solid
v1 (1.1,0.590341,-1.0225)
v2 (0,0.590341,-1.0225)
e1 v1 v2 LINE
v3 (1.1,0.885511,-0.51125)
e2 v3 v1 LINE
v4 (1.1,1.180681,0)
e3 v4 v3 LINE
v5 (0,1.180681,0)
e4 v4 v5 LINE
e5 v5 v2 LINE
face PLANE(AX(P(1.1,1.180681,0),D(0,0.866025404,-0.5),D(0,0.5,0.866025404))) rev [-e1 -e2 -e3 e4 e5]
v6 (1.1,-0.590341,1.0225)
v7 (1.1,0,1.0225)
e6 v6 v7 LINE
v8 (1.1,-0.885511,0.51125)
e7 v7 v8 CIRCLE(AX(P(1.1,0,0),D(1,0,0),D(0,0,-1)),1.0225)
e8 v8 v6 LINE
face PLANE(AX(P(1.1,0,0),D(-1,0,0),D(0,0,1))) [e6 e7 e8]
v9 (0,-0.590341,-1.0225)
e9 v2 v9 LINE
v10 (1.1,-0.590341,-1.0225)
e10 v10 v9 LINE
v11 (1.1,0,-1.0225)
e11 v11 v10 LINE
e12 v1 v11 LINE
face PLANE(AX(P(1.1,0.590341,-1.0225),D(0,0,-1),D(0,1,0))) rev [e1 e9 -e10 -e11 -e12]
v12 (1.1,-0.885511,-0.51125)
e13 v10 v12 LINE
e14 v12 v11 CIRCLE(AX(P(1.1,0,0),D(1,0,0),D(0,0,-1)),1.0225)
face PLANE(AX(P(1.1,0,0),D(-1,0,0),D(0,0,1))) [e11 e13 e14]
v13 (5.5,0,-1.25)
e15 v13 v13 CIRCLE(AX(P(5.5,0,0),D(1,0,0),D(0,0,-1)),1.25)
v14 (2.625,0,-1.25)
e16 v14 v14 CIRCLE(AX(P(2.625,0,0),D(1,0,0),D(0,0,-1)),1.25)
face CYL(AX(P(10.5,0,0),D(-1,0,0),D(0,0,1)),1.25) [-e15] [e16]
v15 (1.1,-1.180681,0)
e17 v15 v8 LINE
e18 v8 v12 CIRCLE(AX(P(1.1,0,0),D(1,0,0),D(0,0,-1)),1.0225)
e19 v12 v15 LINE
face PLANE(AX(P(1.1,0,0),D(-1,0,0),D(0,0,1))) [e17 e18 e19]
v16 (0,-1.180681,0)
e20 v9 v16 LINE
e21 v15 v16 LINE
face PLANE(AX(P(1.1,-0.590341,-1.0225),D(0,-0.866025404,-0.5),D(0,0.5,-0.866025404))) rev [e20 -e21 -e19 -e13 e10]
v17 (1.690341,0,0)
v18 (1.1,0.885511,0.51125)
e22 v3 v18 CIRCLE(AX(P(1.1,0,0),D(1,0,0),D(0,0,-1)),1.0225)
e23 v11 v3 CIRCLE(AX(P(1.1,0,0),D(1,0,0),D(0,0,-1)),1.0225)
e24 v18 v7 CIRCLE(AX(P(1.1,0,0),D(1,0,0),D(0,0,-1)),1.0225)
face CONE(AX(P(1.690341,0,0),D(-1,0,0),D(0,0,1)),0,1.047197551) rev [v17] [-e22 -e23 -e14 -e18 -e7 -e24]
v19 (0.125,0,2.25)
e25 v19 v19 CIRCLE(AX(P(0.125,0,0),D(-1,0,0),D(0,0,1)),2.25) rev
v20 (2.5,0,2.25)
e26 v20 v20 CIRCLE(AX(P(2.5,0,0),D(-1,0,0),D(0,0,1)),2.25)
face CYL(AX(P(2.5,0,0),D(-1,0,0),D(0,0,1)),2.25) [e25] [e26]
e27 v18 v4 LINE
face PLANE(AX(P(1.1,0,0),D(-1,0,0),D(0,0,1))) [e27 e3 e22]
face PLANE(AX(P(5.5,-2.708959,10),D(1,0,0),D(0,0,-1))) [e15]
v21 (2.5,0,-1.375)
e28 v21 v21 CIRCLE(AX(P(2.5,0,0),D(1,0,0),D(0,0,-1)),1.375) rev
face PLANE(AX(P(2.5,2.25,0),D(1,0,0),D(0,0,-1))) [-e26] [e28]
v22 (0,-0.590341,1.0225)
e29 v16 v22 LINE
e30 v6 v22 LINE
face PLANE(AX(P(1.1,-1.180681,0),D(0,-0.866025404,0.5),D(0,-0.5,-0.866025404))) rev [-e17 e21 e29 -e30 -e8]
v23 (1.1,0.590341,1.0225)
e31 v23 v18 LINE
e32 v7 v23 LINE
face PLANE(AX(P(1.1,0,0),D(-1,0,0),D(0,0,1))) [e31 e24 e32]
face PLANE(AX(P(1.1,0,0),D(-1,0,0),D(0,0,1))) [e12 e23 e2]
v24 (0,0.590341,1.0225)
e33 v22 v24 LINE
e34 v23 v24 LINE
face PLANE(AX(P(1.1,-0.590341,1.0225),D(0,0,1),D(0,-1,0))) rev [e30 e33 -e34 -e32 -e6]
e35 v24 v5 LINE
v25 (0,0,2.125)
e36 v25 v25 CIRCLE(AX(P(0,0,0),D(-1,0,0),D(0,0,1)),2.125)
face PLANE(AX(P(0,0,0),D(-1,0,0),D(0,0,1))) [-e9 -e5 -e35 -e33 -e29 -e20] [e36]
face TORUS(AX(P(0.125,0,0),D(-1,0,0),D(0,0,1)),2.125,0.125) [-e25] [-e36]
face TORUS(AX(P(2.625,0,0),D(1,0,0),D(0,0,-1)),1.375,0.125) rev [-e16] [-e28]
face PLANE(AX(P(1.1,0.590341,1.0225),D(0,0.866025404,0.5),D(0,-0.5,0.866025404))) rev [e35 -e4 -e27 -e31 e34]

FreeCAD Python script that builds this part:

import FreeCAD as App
import Part
import Sketcher
Q = App.Units.Quantity


def edges_at(feature, points):
    """Names of the edges that pass closest to the given points."""
    edges = feature.Shape.Edges
    near = lambda p: min(range(len(edges)), key=lambda i: edges[i].distToShape(Part.Vertex(*p))[0])
    return sorted({f"Edge{near(p) + 1}" for p in points})

doc = App.newDocument("Part")
body = doc.addObject("PartDesign::Body", "Body")

# Sketch on XY plane
sketch1 = body.newObject("Sketcher::SketchObject", "Sketch")
sketch1.AttachmentSupport = (doc.getObject("XY_Plane"), [""])
sketch1.MapMode = "FlatFace"
sketch1.addGeometry([
    Part.LineSegment(App.Vector(2.5, 2.2, 0), App.Vector(2.5, 0, 0)),
    Part.LineSegment(App.Vector(2.5, 0, 0), App.Vector(0, 0, 0)),
    Part.LineSegment(App.Vector(0, 0, 0), App.Vector(0, 2.2, 0)),
    Part.LineSegment(App.Vector(0, 2.2, 0), App.Vector(2.5, 2.2, 0)),
], False)
sketch1.addConstraint([
    Sketcher.Constraint("Coincident", 0, 2, 1, 1),
    Sketcher.Constraint("Coincident", 1, 2, 2, 1),
    Sketcher.Constraint("Coincident", 2, 2, 3, 1),
    Sketcher.Constraint("Coincident", 3, 2, 0, 1),
    Sketcher.Constraint("Vertical", 0),
    Sketcher.Constraint("Horizontal", 1),
    Sketcher.Constraint("Vertical", 2),
    Sketcher.Constraint("Horizontal", 3),
    Sketcher.Constraint("Coincident", 1, 2, -1, 1),
    Sketcher.Constraint("DistanceX", 1, 2, 1, 1, Q("2.5 mm")),
    Sketcher.Constraint("DistanceY", 0, 2, 0, 1, Q("2.25 mm")),
])
revolution = body.newObject("PartDesign::Revolution", "Revolution")
revolution.Profile = sketch1
revolution.ReferenceAxis = (sketch1, ["H_Axis"])
revolution.Angle = 360

# Sketch on YZ plane
sketch2 = body.newObject("Sketcher::SketchObject", "Sketch001")
sketch2.AttachmentSupport = (doc.getObject("YZ_Plane"), [""])
sketch2.MapMode = "FlatFace"
sketch2.AttachmentOffset = App.Placement(App.Vector(0, 0, 2.5), App.Rotation())
sketch2.addGeometry(Part.Circle(App.Vector(0, 0, 0), App.Vector(0, 0, 1), 1.2), False)
sketch2.addConstraint([
    Sketcher.Constraint("Coincident", 0, 3, -1, 1),
    Sketcher.Constraint("Diameter", 0, Q("2.5 mm")),
])
pad1 = body.newObject("PartDesign::Pad", "Pad")
pad1.Profile = sketch2
pad1.Length = 8

# Sketch on YZ plane
sketch3 = body.newObject("Sketcher::SketchObject", "Sketch002")
sketch3.AttachmentSupport = (doc.getObject("YZ_Plane"), [""])
sketch3.MapMode = "FlatFace"
sketch3.addGeometry([
    Part.LineSegment(App.Vector(-0.6, -1, 0), App.Vector(-1.2, 0, 0)),  # 0
    Part.LineSegment(App.Vector(-1.2, 0, 0), App.Vector(-0.6, 1, 0)),  # 1
    Part.LineSegment(App.Vector(-0.6, 1, 0), App.Vector(0.6, 1, 0)),  # 2
    Part.LineSegment(App.Vector(0.6, 1, 0), App.Vector(1.2, 0, 0)),  # 3
    Part.LineSegment(App.Vector(1.2, 0, 0), App.Vector(0.6, -1, 0)),  # 4
    Part.LineSegment(App.Vector(0.6, -1, 0), App.Vector(-0.6, -1, 0)),  # 5
], False)
sketch3.addConstraint([
    Sketcher.Constraint("Coincident", 0, 2, 1, 1),
    Sketcher.Constraint("Coincident", 1, 2, 2, 1),
    Sketcher.Constraint("Coincident", 2, 2, 3, 1),
    Sketcher.Constraint("Coincident", 3, 2, 4, 1),
    Sketcher.Constraint("Coincident", 4, 2, 5, 1),
    Sketcher.Constraint("Coincident", 5, 2, 0, 1),
    Sketcher.Constraint("Horizontal", 2),
    Sketcher.Constraint("Horizontal", 5),
    Sketcher.Constraint("Symmetric", 0, 2, 3, 2, -1, 1),
    Sketcher.Constraint("Symmetric", 1, 2, 4, 2, -1, 1),
    Sketcher.Constraint("PointOnObject", 0, 2, -1),
    Sketcher.Constraint("Parallel", 0, 3),
    Sketcher.Constraint("Vertical", 2, 2, 4, 2),
    Sketcher.Constraint("Angle", 0, Q("120 deg")),
    Sketcher.Constraint("DistanceY", 4, 2, 2, 2, Q("2.045 mm")),
    Sketcher.Constraint("DistanceX", 2, 1, 2, 2, Q("1.180681 mm")),
])
pocket1 = body.newObject("PartDesign::Pocket", "Pocket")
pocket1.Profile = sketch3
pocket1.Length = 1.1
pocket1.Reversed = True

# Sketch on XY plane
sketch4 = body.newObject("Sketcher::SketchObject", "Sketch003")
sketch4.AttachmentSupport = (doc.getObject("XY_Plane"), [""])
sketch4.MapMode = "FlatFace"
sketch4.addGeometry([
    Part.LineSegment(App.Vector(1.1, 1, 0), App.Vector(1.1, 0, 0)),
    Part.LineSegment(App.Vector(1.1, 0, 0), App.Vector(1.7, 0, 0)),
    Part.LineSegment(App.Vector(1.7, 0, 0), App.Vector(1.1, 1, 0)),
], False)
sketch4.addConstraint([
    Sketcher.Constraint("Coincident", 0, 2, 1, 1),
    Sketcher.Constraint("Coincident", 1, 2, 2, 1),
    Sketcher.Constraint("Coincident", 2, 2, 0, 1),
    Sketcher.Constraint("Vertical", 0),
    Sketcher.Constraint("Horizontal", 1),
    Sketcher.Constraint("PointOnObject", 0, 2, -1),
    Sketcher.Constraint("Angle", 2, Q("120 deg")),
    Sketcher.Constraint("DistanceX", -1, 1, 0, 2, Q("1.1 mm")),
    Sketcher.Constraint("DistanceY", 0, 2, 0, 1, Q("1.0225 mm")),
])
groove = body.newObject("PartDesign::Groove", "Groove")
groove.Profile = sketch4
groove.ReferenceAxis = (sketch4, ["H_Axis"])
groove.Angle = 360
doc.recompute()

chamfer = body.newObject("PartDesign::Chamfer", "Chamfer")
chamfer.Base = (groove, edges_at(groove, [(10.5, 0, 1.25)]))
chamfer.Size = 0.2535
doc.recompute()

fillet = body.newObject("PartDesign::Fillet", "Fillet")
fillet.Base = (chamfer, edges_at(chamfer, [(0, -2.25, 0), (2.5, 0, 1.25)]))
fillet.Radius = 0.125

# Sketch on XY plane
sketch5 = body.newObject("Sketcher::SketchObject", "Sketch004")
sketch5.AttachmentSupport = (doc.getObject("XY_Plane"), [""])
sketch5.MapMode = "FlatFace"
sketch5.addGeometry([
    Part.LineSegment(App.Vector(5.5, 1.9, 0), App.Vector(5.5, -2.7, 0)),
    Part.LineSegment(App.Vector(5.5, -2.7, 0), App.Vector(10.5, -2.7, 0)),
    Part.LineSegment(App.Vector(10.5, -2.7, 0), App.Vector(10.5, 1.9, 0)),
    Part.LineSegment(App.Vector(10.5, 1.9, 0), App.Vector(5.5, 1.9, 0)),
], False)
sketch5.addConstraint([
    Sketcher.Constraint("Coincident", 0, 2, 1, 1),
    Sketcher.Constraint("Coincident", 1, 2, 2, 1),
    Sketcher.Constraint("Coincident", 2, 2, 3, 1),
    Sketcher.Constraint("Coincident", 3, 2, 0, 1),
    Sketcher.Constraint("Vertical", 0),
    Sketcher.Constraint("Horizontal", 1),
    Sketcher.Constraint("Vertical", 2),
    Sketcher.Constraint("Horizontal", 3),
    Sketcher.Constraint("DistanceX", 1, 1, 1, 2, Q("5 mm")),
    Sketcher.Constraint("DistanceX", -1, 1, 0, 2, Q("5.5 mm")),
    Sketcher.Constraint("DistanceY", 0, 2, 0, 1, Q("4.609791 mm")),
    Sketcher.Constraint("DistanceY", 0, 2, -1, 1, Q("2.708959 mm")),
])
pocket2 = body.newObject("PartDesign::Pocket", "Pocket001")
pocket2.Profile = sketch5
pocket2.Type = "ThroughAll"
pocket2.Midplane = True

doc.recompute()
